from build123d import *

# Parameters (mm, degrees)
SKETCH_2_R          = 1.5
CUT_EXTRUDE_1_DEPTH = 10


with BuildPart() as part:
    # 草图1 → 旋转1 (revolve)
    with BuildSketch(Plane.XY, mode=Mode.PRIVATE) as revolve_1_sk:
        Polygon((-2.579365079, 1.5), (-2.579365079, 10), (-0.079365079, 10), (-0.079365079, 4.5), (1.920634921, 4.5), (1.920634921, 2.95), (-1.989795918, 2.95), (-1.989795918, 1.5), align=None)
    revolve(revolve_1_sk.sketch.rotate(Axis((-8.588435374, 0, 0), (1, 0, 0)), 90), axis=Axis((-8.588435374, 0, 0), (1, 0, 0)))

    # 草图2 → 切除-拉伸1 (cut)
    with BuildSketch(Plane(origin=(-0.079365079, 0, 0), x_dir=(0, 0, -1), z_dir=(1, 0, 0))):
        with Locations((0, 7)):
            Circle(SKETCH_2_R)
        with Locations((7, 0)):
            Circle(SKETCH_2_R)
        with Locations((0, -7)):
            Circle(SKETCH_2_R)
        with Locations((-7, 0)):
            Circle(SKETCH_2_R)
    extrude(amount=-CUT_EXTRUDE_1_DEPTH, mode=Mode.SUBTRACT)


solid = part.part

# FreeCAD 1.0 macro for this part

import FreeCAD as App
import Part
import Sketcher
from FreeCAD import Vector


def add_polygon(sketch, points):
    """Adds a closed chain of lines whose ends are joined by coincident constraints."""
    first, n = sketch.GeometryCount, len(points)
    for a, b in zip(points, points[1:] + points[:1]):
        sketch.addGeometry(Part.LineSegment(App.Vector(*a, 0), App.Vector(*b, 0)), False)
    for i in range(n):
        sketch.addConstraint(Sketcher.Constraint("Coincident", first + i, 2, first + (i + 1) % n, 1))

doc = App.newDocument("Part")
body = doc.addObject("PartDesign::Body", "Body")

# Sketch on XY plane
sketch1 = doc.addObject("Sketcher::SketchObject", "Sketch")
body.addObject(sketch1)
sketch1.AttachmentSupport = (doc.XY_Plane, [""])
sketch1.MapMode = "FlatFace"
add_polygon(sketch1, [(-2.6, 10), (-2.6, 1.5), (-2, 1.5), (-2, 3), (1.9, 3), (1.9, 4.5), (-0.1, 4.5), (-0.1, 10)])  # lines 0-7
sketch1.addConstraint(Sketcher.Constraint("Vertical", 0))
sketch1.addConstraint(Sketcher.Constraint("Horizontal", 1))
sketch1.addConstraint(Sketcher.Constraint("Vertical", 2))
sketch1.addConstraint(Sketcher.Constraint("Horizontal", 3))
sketch1.addConstraint(Sketcher.Constraint("Vertical", 4))
sketch1.addConstraint(Sketcher.Constraint("Horizontal", 5))
sketch1.addConstraint(Sketcher.Constraint("Vertical", 6))
sketch1.addConstraint(Sketcher.Constraint("Horizontal", 7))
sketch1.addConstraint(Sketcher.Constraint("DistanceX", 5, 2, 5, 1, 2.0))
sketch1.addConstraint(Sketcher.Constraint("DistanceX", 7, 2, 7, 1, 2.5))
sketch1.addConstraint(Sketcher.Constraint("DistanceY", 0, 2, 0, 1, 8.5))
sketch1.addConstraint(Sketcher.Constraint("DistanceY", 6, 1, 6, 2, 5.5))
sketch1.addConstraint(Sketcher.Constraint("DistanceY", -1, 1, 6, 2, 10.0))
sketch1.addConstraint(Sketcher.Constraint("DistanceY", 2, 1, 2, 2, 1.45))
sketch1.addConstraint(Sketcher.Constraint("DistanceX", 1, 1, 1, 2, 0.589569))
sketch1.addConstraint(Sketcher.Constraint("DistanceX", 0, 2, -1, 1, 2.579365))
revolution = doc.addObject("PartDesign::Revolution", "Revolution")
body.addObject(revolution)
revolution.Profile = sketch1
revolution.ReferenceAxis = (sketch1, ["H_Axis"])
revolution.Angle = 360

# Sketch on YZ plane
sketch2 = doc.addObject("Sketcher::SketchObject", "Sketch001")
body.addObject(sketch2)
sketch2.AttachmentSupport = (doc.YZ_Plane, [""])
sketch2.MapMode = "FlatFace"
sketch2.AttachmentOffset = App.Placement(Vector(0, 0, -0.079365), App.Rotation())
sketch2.addGeometry(Part.Circle(Vector(7, 0, 0), Vector(0, 0, 1), 1.5), False)
sketch2.addGeometry(Part.Circle(Vector(0, -7, 0), Vector(0, 0, 1), 1.5), False)
sketch2.addGeometry(Part.Circle(Vector(-7, 0, 0), Vector(0, 0, 1), 1.5), False)
sketch2.addGeometry(Part.Circle(Vector(0, 7, 0), Vector(0, 0, 1), 1.5), False)
sketch2.addConstraint(Sketcher.Constraint("Equal", 0, 1))
sketch2.addConstraint(Sketcher.Constraint("Equal", 1, 2))
sketch2.addConstraint(Sketcher.Constraint("Equal", 2, 3))
sketch2.addConstraint(Sketcher.Constraint("Symmetric", 0, 3, 2, 3, -1, 1))
sketch2.addConstraint(Sketcher.Constraint("Symmetric", 1, 3, 3, 3, -1, 1))
sketch2.addConstraint(Sketcher.Constraint("PointOnObject", 0, 3, -1))
sketch2.addConstraint(Sketcher.Constraint("PointOnObject", 1, 3, -2))
sketch2.addConstraint(Sketcher.Constraint("Diameter", 0, 3.0))
sketch2.addConstraint(Sketcher.Constraint("DistanceX", -1, 1, 0, 3, 7.0))
sketch2.addConstraint(Sketcher.Constraint("DistanceY", 1, 3, -1, 1, 7.0))
pocket1 = doc.addObject("PartDesign::Pocket", "Pocket")
body.addObject(pocket1)
pocket1.Profile = sketch2
pocket1.Length = 10

doc.recompute()
